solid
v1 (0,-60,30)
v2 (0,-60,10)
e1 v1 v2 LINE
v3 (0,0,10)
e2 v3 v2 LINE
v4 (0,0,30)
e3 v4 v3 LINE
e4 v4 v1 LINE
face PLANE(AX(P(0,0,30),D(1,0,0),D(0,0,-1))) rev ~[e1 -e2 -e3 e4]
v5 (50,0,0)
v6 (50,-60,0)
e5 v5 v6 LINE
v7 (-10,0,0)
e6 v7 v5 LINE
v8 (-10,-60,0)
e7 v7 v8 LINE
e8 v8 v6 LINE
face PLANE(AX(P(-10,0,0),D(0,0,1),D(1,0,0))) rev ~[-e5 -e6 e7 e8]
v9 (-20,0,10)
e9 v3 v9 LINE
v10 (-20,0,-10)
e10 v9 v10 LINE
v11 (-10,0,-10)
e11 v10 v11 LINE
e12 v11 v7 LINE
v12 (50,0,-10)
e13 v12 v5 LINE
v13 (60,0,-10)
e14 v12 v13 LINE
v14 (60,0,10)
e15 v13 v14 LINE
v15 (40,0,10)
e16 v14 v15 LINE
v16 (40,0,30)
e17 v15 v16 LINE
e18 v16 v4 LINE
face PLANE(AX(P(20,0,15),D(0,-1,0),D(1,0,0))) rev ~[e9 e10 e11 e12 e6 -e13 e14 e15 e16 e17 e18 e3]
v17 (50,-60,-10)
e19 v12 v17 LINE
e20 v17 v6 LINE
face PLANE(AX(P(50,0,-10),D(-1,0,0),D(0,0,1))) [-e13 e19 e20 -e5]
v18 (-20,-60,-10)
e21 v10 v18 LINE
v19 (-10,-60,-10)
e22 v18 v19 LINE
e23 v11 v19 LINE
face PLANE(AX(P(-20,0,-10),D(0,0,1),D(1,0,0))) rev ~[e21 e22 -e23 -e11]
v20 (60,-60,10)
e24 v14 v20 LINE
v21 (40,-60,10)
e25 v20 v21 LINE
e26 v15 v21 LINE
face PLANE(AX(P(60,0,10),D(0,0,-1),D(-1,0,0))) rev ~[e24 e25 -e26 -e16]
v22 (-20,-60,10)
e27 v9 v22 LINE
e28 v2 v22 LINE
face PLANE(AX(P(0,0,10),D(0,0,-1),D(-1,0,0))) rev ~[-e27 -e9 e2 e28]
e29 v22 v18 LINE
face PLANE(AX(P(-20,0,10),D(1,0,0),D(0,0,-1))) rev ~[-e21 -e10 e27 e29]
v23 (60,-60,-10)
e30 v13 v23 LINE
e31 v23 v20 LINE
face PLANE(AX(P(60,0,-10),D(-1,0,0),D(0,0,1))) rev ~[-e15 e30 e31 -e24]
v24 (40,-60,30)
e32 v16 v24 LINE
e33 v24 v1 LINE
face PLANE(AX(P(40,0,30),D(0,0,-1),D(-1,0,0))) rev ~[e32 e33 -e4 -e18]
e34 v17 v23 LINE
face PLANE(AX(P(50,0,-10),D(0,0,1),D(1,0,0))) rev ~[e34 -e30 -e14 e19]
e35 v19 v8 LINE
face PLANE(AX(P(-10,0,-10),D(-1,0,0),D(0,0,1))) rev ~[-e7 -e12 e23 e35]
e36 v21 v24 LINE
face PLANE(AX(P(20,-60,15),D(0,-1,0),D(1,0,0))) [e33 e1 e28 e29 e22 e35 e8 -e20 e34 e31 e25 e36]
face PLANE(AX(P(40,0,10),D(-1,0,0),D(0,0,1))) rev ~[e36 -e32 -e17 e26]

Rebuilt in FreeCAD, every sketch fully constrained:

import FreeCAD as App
import Part
import Sketcher

V = App.Vector
Q = App.Units.Quantity


def add_polygon(sketch, points):
    """Adds a closed chain of lines whose ends are joined by coincident constraints."""
    first, n = sketch.GeometryCount, len(points)
    for a, b in zip(points, points[1:] + points[:1]):
        sketch.addGeometry(Part.LineSegment(App.Vector(*a, 0), App.Vector(*b, 0)), False)
    for i in range(n):
        sketch.addConstraint(Sketcher.Constraint("Coincident", first + i, 2, first + (i + 1) % n, 1))

doc = App.newDocument("Part")
params = doc.addObject("Spreadsheet::Sheet", "Params")
for row, (alias, value) in enumerate([
    ("sketch1_width", "40 mm"),
    ("sketch1_width2", "20 mm"),
    ("sketch1_width3", "10 mm"),
    ("pad1_length", "60 mm"),
], start=1):
    params.set(f"A{row}", alias)
    params.set(f"B{row}", "=" + value)
    params.setAlias(f"B{row}", alias)

body = doc.addObject("PartDesign::Body", "Body")

sketch1 = doc.addObject("Sketcher::SketchObject", "Sketch")
body.addObject(sketch1)
sketch1.AttachmentSupport = (doc.XZ_Plane, [""])
sketch1.MapMode = "FlatFace"
add_polygon(sketch1, [(40, 10), (40, 30), (0, 30), (0, 10), (-20, 10), (-20, -10), (-10, -10), (-10, 0), (50, 0), (50, -10), (60, -10), (60, 10)])
sketch1.addConstraint(Sketcher.Constraint("Vertical", 0))
sketch1.addConstraint(Sketcher.Constraint("Horizontal", 1))
sketch1.addConstraint(Sketcher.Constraint("Vertical", 2))
sketch1.addConstraint(Sketcher.Constraint("Horizontal", 3))
sketch1.addConstraint(Sketcher.Constraint("Vertical", 4))
sketch1.addConstraint(Sketcher.Constraint("Horizontal", 5))
sketch1.addConstraint(Sketcher.Constraint("Vertical", 6))
sketch1.addConstraint(Sketcher.Constraint("Horizontal", 7))
sketch1.addConstraint(Sketcher.Constraint("Vertical", 8))
sketch1.addConstraint(Sketcher.Constraint("Horizontal", 9))
sketch1.addConstraint(Sketcher.Constraint("Vertical", 10))
sketch1.addConstraint(Sketcher.Constraint("Horizontal", 11))
sketch1.addConstraint(Sketcher.Constraint("PointOnObject", 1, 2, -2))
sketch1.addConstraint(Sketcher.Constraint("PointOnObject", 6, 2, -1))
sketch1.addConstraint(Sketcher.Constraint("Horizontal", 5, 2, 8, 2))
sketch1.addConstraint(Sketcher.Constraint("Horizontal", 3, 2, 10, 2))
sketch1.addConstraint(Sketcher.Constraint("Equal", 5, 9))
sketch1.addConstraint(Sketcher.Constraint("Equal", 3, 11))
sketch1.addConstraint(Sketcher.Constraint("Equal", 11, 0))
sketch1.addConstraint(Sketcher.Constraint("Equal", 2, 4))
sketch1.addConstraint(Sketcher.Constraint("Equal", 9, 6))
sketch1.addConstraint(Sketcher.Constraint("DistanceX", 1, 2, 1, 1, Q("40 mm")))
sketch1.addConstraint(Sketcher.Constraint("DistanceX", 3, 2, 3, 1, Q("20 mm")))
sketch1.addConstraint(Sketcher.Constraint("DistanceX", 5, 1, 5, 2, Q("10 mm")))
sketch1.setExpression("Constraints[33]", "Params.sketch1_width")
sketch1.setExpression("Constraints[34]", "Params.sketch1_width2")
sketch1.setExpression("Constraints[35]", "Params.sketch1_width3")
pad1 = doc.addObject("PartDesign::Pad", "Pad")
body.addObject(pad1)
pad1.Profile = sketch1
pad1.setExpression("Length", "Params.pad1_length")

doc.recompute()
